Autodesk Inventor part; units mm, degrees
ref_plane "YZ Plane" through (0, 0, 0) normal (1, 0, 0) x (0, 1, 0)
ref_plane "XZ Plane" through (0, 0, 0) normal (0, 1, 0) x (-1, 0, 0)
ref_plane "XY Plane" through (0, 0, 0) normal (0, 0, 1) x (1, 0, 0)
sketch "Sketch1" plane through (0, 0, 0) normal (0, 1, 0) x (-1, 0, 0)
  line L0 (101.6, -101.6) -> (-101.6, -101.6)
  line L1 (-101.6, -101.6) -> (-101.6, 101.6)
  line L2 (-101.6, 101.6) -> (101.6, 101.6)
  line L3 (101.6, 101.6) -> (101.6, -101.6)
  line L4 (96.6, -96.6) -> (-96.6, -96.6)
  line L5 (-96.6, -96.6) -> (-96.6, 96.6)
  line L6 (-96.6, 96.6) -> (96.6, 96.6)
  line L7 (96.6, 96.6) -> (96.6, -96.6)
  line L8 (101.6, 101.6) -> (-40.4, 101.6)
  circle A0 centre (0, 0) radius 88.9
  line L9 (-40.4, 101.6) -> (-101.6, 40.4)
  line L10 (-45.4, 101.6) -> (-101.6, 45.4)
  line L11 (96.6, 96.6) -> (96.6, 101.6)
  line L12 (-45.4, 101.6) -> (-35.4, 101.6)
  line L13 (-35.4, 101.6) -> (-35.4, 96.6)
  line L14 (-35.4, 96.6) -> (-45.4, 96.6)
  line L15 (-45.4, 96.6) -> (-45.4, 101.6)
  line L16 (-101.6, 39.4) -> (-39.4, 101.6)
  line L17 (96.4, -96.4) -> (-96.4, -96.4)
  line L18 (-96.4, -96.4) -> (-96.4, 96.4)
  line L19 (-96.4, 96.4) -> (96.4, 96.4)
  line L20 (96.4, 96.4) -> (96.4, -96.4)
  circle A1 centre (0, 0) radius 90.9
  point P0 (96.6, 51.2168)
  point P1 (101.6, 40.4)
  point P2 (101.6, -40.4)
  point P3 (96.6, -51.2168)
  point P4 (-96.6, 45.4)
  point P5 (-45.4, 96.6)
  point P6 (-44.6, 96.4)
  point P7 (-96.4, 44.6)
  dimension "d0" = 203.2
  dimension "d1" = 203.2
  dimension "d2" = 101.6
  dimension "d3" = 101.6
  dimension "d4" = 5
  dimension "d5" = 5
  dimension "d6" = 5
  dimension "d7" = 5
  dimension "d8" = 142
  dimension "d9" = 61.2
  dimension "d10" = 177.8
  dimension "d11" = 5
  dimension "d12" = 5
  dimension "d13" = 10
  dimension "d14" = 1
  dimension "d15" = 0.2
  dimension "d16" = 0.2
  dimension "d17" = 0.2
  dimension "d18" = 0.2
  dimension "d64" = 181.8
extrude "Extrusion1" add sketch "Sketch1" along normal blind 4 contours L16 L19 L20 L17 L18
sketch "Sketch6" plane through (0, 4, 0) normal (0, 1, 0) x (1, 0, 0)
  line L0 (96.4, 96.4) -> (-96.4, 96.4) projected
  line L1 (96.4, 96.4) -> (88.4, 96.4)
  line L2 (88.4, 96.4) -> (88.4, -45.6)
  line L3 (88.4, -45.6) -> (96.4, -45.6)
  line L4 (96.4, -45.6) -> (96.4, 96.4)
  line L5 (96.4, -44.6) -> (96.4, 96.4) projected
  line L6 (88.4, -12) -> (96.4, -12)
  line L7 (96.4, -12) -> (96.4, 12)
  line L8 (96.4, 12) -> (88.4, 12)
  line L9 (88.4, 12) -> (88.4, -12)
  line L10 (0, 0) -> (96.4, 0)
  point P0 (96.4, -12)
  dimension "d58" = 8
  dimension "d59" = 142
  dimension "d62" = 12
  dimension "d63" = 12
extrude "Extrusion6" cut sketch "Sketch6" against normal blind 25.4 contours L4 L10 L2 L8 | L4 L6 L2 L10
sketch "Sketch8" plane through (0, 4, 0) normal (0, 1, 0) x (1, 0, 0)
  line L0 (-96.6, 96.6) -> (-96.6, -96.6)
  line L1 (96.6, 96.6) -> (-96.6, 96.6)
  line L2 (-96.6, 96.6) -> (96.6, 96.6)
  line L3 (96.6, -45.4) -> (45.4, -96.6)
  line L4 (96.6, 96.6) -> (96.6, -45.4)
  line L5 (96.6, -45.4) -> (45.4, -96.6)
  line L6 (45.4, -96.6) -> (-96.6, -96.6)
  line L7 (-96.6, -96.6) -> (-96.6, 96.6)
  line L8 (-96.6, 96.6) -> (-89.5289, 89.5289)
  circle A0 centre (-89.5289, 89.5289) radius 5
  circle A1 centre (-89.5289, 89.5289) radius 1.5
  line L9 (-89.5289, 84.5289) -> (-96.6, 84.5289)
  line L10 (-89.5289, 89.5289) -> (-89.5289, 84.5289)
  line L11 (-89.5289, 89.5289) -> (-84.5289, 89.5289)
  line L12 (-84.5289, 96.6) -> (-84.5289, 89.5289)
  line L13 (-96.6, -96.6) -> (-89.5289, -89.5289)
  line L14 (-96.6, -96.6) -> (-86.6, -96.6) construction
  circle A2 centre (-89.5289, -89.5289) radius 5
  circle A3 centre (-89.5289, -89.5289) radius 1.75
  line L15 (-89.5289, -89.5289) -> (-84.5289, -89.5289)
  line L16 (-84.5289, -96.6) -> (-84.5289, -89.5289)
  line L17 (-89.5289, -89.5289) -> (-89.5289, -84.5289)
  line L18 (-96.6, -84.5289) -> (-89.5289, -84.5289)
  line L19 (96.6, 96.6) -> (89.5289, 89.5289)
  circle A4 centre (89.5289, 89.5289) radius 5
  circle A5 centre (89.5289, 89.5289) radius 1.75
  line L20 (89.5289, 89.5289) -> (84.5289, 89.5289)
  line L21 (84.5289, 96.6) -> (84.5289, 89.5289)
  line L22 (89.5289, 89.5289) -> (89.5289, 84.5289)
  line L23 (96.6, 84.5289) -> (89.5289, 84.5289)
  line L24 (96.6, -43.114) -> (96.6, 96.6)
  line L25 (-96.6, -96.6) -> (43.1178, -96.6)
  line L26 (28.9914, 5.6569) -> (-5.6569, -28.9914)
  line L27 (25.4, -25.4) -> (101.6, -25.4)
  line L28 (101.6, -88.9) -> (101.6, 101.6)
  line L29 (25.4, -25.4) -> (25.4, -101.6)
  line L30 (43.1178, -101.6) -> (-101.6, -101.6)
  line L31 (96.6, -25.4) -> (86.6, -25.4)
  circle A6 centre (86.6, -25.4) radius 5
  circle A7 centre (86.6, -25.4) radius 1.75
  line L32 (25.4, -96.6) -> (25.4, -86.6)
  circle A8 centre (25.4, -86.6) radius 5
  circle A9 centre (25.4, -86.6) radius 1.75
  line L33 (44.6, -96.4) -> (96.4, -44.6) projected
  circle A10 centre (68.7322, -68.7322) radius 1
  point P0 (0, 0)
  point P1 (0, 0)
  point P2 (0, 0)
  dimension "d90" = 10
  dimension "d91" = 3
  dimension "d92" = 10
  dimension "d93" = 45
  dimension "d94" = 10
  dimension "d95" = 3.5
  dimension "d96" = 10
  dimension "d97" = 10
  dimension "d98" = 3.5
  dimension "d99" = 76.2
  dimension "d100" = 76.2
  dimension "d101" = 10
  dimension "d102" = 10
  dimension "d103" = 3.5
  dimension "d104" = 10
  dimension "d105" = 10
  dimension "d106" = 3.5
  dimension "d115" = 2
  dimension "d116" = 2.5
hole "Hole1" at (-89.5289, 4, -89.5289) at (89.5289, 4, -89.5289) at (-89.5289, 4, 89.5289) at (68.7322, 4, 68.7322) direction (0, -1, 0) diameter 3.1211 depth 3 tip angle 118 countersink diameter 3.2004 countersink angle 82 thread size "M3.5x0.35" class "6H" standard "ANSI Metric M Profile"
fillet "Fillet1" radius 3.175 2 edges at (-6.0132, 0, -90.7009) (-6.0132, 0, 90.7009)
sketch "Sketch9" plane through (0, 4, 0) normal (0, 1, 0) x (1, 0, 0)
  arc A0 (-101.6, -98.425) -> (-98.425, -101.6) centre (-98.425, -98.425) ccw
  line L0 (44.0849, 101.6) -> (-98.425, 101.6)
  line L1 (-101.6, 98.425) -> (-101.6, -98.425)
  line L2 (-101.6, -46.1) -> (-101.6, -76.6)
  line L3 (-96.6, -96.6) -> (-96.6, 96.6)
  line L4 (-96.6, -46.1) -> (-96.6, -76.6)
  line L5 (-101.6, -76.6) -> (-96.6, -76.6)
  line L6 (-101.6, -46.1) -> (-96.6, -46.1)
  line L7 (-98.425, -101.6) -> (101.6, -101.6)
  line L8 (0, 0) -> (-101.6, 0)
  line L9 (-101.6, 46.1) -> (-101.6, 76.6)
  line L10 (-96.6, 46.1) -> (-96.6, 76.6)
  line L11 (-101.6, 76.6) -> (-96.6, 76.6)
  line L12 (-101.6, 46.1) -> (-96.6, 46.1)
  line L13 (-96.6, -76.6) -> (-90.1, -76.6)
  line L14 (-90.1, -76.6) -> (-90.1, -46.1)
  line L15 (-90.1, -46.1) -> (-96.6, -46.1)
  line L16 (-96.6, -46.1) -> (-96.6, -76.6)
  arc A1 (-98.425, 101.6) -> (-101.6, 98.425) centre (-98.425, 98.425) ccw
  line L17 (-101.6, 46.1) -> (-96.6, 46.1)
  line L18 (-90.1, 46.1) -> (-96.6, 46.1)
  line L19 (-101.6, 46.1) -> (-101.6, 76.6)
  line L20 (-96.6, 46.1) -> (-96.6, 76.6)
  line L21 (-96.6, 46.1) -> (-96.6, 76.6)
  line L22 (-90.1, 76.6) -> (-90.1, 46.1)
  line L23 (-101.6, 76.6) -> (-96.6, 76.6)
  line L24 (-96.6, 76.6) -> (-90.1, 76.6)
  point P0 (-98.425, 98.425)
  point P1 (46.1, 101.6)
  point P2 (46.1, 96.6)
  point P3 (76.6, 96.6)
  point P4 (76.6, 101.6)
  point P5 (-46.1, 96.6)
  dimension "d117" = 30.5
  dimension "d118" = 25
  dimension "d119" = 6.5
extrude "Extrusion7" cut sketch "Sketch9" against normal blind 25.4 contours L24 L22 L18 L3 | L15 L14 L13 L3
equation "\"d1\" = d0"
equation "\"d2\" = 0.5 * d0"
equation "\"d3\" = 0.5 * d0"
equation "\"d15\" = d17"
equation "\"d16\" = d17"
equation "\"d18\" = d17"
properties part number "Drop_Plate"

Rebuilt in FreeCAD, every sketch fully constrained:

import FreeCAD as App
import Part
import Sketcher


def edges_at(feature, points):
    """Names of the edges that pass closest to the given points."""
    edges = feature.Shape.Edges
    near = lambda p: min(range(len(edges)), key=lambda i: edges[i].distToShape(Part.Vertex(*p))[0])
    return sorted({f"Edge{near(p) + 1}" for p in points})

doc = App.newDocument("Part")
body = doc.addObject("PartDesign::Body", "Body")

# Sketch on XZ plane
sketch1 = body.newObject("Sketcher::SketchObject", "Sketch")
sketch1.AttachmentSupport = (doc.getObject("XZ_Plane"), [""])
sketch1.MapMode = "FlatFace"
sketch1.addGeometry([
    Part.LineSegment(App.Vector(45, 96, 0), App.Vector(96, 45, 0)),  # 0
    Part.LineSegment(App.Vector(96, 45, 0), App.Vector(96, -96, 0)),  # 1
    Part.LineSegment(App.Vector(96, -96, 0), App.Vector(-96, -96, 0)),  # 2
    Part.LineSegment(App.Vector(-96, -96, 0), App.Vector(-96, 96, 0)),  # 3
    Part.LineSegment(App.Vector(-96, 96, 0), App.Vector(45, 96, 0)),  # 4
    Part.Circle(App.Vector(0, 0, 0), App.Vector(0, 0, 1), 91),  # 5
], False)
sketch1.addConstraint([
    Sketcher.Constraint("Coincident", 0, 2, 1, 1),
    Sketcher.Constraint("Coincident", 1, 2, 2, 1),
    Sketcher.Constraint("Coincident", 2, 2, 3, 1),
    Sketcher.Constraint("Coincident", 3, 2, 4, 1),
    Sketcher.Constraint("Coincident", 4, 2, 0, 1),
    Sketcher.Constraint("Vertical", 1),
    Sketcher.Constraint("Horizontal", 2),
    Sketcher.Constraint("Vertical", 3),
    Sketcher.Constraint("Horizontal", 4),
    Sketcher.Constraint("Coincident", 5, 3, -1, 1),
    Sketcher.Constraint("Symmetric", 1, 2, 3, 2, -1, 1),
    Sketcher.Constraint("Equal", 4, 1),
    Sketcher.Constraint("Equal", 2, 3),
    Sketcher.Constraint("Diameter", 5, 181.8),
    Sketcher.Constraint("DistanceX", 4, 1, 4, 2, 141.0),
    Sketcher.Constraint("DistanceX", 2, 2, 2, 1, 192.8),
])
pad1 = body.newObject("PartDesign::Pad", "Pad")
pad1.Profile = sketch1
pad1.Length = 4
pad1.Reversed = True

# Sketch on XZ plane
sketch2 = body.newObject("Sketcher::SketchObject", "Sketch001")
sketch2.AttachmentSupport = (doc.getObject("XZ_Plane"), [""])
sketch2.MapMode = "FlatFace"
sketch2.AttachmentOffset = App.Placement(App.Vector(0, 0, -4), App.Rotation())
sketch2.addGeometry([
    Part.LineSegment(App.Vector(96, -12, 0), App.Vector(88, -12, 0)),
    Part.LineSegment(App.Vector(88, -12, 0), App.Vector(88, 12, 0)),
    Part.LineSegment(App.Vector(88, 12, 0), App.Vector(96, 12, 0)),
    Part.LineSegment(App.Vector(96, 12, 0), App.Vector(96, -12, 0)),
], False)
sketch2.addConstraint([
    Sketcher.Constraint("Coincident", 0, 2, 1, 1),
    Sketcher.Constraint("Coincident", 1, 2, 2, 1),
    Sketcher.Constraint("Coincident", 2, 2, 3, 1),
    Sketcher.Constraint("Coincident", 3, 2, 0, 1),
    Sketcher.Constraint("Horizontal", 0),
    Sketcher.Constraint("Vertical", 1),
    Sketcher.Constraint("Horizontal", 2),
    Sketcher.Constraint("Vertical", 3),
    Sketcher.Constraint("DistanceX", 0, 2, 0, 1, 8.0),
    Sketcher.Constraint("DistanceY", 0, 2, -1, 1, 12.0),
    Sketcher.Constraint("DistanceY", -1, 1, 1, 2, 12.0),
    Sketcher.Constraint("DistanceX", -1, 1, 0, 2, 88.4),
])
pocket1 = body.newObject("PartDesign::Pocket", "Pocket")
pocket1.Profile = sketch2
pocket1.Length = 25.4
pocket1.Reversed = True

# Sketch on XZ plane
sketch3 = body.newObject("Sketcher::SketchObject", "Sketch002")
sketch3.AttachmentSupport = (doc.getObject("XZ_Plane"), [""])
sketch3.MapMode = "FlatFace"
sketch3.AttachmentOffset = App.Placement(App.Vector(0, 0, -4), App.Rotation())
sketch3.addGeometry([
    Part.Circle(App.Vector(-89.5, -89.5, 0), App.Vector(0, 0, 1), 1.6),
    Part.Circle(App.Vector(89.5, -89.5, 0), App.Vector(0, 0, 1), 1.6),
    Part.Circle(App.Vector(-89.5, 89.5, 0), App.Vector(0, 0, 1), 1.6),
    Part.Circle(App.Vector(68.7, 68.7, 0), App.Vector(0, 0, 1), 1.6),
], False)
sketch3.addConstraint([
    Sketcher.Constraint("Equal", 0, 1),
    Sketcher.Constraint("Equal", 1, 2),
    Sketcher.Constraint("Equal", 2, 3),
    Sketcher.Constraint("Symmetric", 1, 3, 2, 3, -1, 1),
    Sketcher.Constraint("Symmetric", 0, 3, 1, 3, -2),
    Sketcher.Constraint("Diameter", 0, 3.121),
    Sketcher.Constraint("DistanceX", 0, 3, -1, 1, 89.529),
    Sketcher.Constraint("DistanceY", 0, 3, -1, 1, 89.529),
    Sketcher.Constraint("DistanceY", 1, 3, 3, 3, 158.261),
    Sketcher.Constraint("DistanceX", 2, 3, 3, 3, 158.261),
])
doc.recompute()
hole = body.newObject("PartDesign::Hole", "Hole")
hole.Profile = sketch3
hole.ThreadType = "None"
hole.Diameter = 3.1211
hole.DepthType = "Dimension"
hole.Depth = 3
hole.DrillPoint = "Angled"
hole.DrillPointAngle = 118
hole.HoleCutType = "Countersink"
hole.HoleCutDiameter = 3.2004
hole.HoleCutCountersinkAngle = 82
hole.Reversed = True
doc.recompute()

fillet = body.newObject("PartDesign::Fillet", "Fillet")
fillet.Base = (hole, edges_at(hole, [(-6.013, 0, -90.701), (-6.013, 0, 90.701)]))
fillet.Radius = 3.175

# Sketch on XZ plane
sketch4 = body.newObject("Sketcher::SketchObject", "Sketch003")
sketch4.AttachmentSupport = (doc.getObject("XZ_Plane"), [""])
sketch4.MapMode = "FlatFace"
sketch4.AttachmentOffset = App.Placement(App.Vector(0, 0, -4), App.Rotation())
sketch4.addGeometry([
    Part.LineSegment(App.Vector(-90, -77, 0), App.Vector(-97, -77, 0)),  # 0
    Part.LineSegment(App.Vector(-97, -77, 0), App.Vector(-97, -46, 0)),  # 1
    Part.LineSegment(App.Vector(-97, -46, 0), App.Vector(-90, -46, 0)),  # 2
    Part.LineSegment(App.Vector(-90, -46, 0), App.Vector(-90, -77, 0)),  # 3
    Part.LineSegment(App.Vector(-90, 46, 0), App.Vector(-97, 46, 0)),  # 4
    Part.LineSegment(App.Vector(-97, 46, 0), App.Vector(-97, 77, 0)),  # 5
    Part.LineSegment(App.Vector(-97, 77, 0), App.Vector(-90, 77, 0)),  # 6
    Part.LineSegment(App.Vector(-90, 77, 0), App.Vector(-90, 46, 0)),  # 7
], False)
sketch4.addConstraint([
    Sketcher.Constraint("Coincident", 0, 2, 1, 1),
    Sketcher.Constraint("Coincident", 1, 2, 2, 1),
    Sketcher.Constraint("Coincident", 2, 2, 3, 1),
    Sketcher.Constraint("Coincident", 3, 2, 0, 1),
    Sketcher.Constraint("Coincident", 4, 2, 5, 1),
    Sketcher.Constraint("Coincident", 5, 2, 6, 1),
    Sketcher.Constraint("Coincident", 6, 2, 7, 1),
    Sketcher.Constraint("Coincident", 7, 2, 4, 1),
    Sketcher.Constraint("Horizontal", 0),
    Sketcher.Constraint("Vertical", 1),
    Sketcher.Constraint("Horizontal", 2),
    Sketcher.Constraint("Vertical", 3),
    Sketcher.Constraint("Horizontal", 4),
    Sketcher.Constraint("Vertical", 5),
    Sketcher.Constraint("Horizontal", 6),
    Sketcher.Constraint("Vertical", 7),
    Sketcher.Constraint("Symmetric", 1, 2, 4, 2, -1),
    Sketcher.Constraint("Symmetric", 3, 2, 6, 2, -1),
    Sketcher.Constraint("DistanceX", 0, 2, 0, 1, 6.5),
    Sketcher.Constraint("DistanceY", 1, 1, 1, 2, 30.5),
    Sketcher.Constraint("DistanceX", 0, 2, -1, 1, 96.6),
    Sketcher.Constraint("DistanceY", 0, 2, -1, 1, 76.6),
])
pocket2 = body.newObject("PartDesign::Pocket", "Pocket001")
pocket2.Profile = sketch4
pocket2.Length = 25.4
pocket2.Reversed = True

doc.recompute()
